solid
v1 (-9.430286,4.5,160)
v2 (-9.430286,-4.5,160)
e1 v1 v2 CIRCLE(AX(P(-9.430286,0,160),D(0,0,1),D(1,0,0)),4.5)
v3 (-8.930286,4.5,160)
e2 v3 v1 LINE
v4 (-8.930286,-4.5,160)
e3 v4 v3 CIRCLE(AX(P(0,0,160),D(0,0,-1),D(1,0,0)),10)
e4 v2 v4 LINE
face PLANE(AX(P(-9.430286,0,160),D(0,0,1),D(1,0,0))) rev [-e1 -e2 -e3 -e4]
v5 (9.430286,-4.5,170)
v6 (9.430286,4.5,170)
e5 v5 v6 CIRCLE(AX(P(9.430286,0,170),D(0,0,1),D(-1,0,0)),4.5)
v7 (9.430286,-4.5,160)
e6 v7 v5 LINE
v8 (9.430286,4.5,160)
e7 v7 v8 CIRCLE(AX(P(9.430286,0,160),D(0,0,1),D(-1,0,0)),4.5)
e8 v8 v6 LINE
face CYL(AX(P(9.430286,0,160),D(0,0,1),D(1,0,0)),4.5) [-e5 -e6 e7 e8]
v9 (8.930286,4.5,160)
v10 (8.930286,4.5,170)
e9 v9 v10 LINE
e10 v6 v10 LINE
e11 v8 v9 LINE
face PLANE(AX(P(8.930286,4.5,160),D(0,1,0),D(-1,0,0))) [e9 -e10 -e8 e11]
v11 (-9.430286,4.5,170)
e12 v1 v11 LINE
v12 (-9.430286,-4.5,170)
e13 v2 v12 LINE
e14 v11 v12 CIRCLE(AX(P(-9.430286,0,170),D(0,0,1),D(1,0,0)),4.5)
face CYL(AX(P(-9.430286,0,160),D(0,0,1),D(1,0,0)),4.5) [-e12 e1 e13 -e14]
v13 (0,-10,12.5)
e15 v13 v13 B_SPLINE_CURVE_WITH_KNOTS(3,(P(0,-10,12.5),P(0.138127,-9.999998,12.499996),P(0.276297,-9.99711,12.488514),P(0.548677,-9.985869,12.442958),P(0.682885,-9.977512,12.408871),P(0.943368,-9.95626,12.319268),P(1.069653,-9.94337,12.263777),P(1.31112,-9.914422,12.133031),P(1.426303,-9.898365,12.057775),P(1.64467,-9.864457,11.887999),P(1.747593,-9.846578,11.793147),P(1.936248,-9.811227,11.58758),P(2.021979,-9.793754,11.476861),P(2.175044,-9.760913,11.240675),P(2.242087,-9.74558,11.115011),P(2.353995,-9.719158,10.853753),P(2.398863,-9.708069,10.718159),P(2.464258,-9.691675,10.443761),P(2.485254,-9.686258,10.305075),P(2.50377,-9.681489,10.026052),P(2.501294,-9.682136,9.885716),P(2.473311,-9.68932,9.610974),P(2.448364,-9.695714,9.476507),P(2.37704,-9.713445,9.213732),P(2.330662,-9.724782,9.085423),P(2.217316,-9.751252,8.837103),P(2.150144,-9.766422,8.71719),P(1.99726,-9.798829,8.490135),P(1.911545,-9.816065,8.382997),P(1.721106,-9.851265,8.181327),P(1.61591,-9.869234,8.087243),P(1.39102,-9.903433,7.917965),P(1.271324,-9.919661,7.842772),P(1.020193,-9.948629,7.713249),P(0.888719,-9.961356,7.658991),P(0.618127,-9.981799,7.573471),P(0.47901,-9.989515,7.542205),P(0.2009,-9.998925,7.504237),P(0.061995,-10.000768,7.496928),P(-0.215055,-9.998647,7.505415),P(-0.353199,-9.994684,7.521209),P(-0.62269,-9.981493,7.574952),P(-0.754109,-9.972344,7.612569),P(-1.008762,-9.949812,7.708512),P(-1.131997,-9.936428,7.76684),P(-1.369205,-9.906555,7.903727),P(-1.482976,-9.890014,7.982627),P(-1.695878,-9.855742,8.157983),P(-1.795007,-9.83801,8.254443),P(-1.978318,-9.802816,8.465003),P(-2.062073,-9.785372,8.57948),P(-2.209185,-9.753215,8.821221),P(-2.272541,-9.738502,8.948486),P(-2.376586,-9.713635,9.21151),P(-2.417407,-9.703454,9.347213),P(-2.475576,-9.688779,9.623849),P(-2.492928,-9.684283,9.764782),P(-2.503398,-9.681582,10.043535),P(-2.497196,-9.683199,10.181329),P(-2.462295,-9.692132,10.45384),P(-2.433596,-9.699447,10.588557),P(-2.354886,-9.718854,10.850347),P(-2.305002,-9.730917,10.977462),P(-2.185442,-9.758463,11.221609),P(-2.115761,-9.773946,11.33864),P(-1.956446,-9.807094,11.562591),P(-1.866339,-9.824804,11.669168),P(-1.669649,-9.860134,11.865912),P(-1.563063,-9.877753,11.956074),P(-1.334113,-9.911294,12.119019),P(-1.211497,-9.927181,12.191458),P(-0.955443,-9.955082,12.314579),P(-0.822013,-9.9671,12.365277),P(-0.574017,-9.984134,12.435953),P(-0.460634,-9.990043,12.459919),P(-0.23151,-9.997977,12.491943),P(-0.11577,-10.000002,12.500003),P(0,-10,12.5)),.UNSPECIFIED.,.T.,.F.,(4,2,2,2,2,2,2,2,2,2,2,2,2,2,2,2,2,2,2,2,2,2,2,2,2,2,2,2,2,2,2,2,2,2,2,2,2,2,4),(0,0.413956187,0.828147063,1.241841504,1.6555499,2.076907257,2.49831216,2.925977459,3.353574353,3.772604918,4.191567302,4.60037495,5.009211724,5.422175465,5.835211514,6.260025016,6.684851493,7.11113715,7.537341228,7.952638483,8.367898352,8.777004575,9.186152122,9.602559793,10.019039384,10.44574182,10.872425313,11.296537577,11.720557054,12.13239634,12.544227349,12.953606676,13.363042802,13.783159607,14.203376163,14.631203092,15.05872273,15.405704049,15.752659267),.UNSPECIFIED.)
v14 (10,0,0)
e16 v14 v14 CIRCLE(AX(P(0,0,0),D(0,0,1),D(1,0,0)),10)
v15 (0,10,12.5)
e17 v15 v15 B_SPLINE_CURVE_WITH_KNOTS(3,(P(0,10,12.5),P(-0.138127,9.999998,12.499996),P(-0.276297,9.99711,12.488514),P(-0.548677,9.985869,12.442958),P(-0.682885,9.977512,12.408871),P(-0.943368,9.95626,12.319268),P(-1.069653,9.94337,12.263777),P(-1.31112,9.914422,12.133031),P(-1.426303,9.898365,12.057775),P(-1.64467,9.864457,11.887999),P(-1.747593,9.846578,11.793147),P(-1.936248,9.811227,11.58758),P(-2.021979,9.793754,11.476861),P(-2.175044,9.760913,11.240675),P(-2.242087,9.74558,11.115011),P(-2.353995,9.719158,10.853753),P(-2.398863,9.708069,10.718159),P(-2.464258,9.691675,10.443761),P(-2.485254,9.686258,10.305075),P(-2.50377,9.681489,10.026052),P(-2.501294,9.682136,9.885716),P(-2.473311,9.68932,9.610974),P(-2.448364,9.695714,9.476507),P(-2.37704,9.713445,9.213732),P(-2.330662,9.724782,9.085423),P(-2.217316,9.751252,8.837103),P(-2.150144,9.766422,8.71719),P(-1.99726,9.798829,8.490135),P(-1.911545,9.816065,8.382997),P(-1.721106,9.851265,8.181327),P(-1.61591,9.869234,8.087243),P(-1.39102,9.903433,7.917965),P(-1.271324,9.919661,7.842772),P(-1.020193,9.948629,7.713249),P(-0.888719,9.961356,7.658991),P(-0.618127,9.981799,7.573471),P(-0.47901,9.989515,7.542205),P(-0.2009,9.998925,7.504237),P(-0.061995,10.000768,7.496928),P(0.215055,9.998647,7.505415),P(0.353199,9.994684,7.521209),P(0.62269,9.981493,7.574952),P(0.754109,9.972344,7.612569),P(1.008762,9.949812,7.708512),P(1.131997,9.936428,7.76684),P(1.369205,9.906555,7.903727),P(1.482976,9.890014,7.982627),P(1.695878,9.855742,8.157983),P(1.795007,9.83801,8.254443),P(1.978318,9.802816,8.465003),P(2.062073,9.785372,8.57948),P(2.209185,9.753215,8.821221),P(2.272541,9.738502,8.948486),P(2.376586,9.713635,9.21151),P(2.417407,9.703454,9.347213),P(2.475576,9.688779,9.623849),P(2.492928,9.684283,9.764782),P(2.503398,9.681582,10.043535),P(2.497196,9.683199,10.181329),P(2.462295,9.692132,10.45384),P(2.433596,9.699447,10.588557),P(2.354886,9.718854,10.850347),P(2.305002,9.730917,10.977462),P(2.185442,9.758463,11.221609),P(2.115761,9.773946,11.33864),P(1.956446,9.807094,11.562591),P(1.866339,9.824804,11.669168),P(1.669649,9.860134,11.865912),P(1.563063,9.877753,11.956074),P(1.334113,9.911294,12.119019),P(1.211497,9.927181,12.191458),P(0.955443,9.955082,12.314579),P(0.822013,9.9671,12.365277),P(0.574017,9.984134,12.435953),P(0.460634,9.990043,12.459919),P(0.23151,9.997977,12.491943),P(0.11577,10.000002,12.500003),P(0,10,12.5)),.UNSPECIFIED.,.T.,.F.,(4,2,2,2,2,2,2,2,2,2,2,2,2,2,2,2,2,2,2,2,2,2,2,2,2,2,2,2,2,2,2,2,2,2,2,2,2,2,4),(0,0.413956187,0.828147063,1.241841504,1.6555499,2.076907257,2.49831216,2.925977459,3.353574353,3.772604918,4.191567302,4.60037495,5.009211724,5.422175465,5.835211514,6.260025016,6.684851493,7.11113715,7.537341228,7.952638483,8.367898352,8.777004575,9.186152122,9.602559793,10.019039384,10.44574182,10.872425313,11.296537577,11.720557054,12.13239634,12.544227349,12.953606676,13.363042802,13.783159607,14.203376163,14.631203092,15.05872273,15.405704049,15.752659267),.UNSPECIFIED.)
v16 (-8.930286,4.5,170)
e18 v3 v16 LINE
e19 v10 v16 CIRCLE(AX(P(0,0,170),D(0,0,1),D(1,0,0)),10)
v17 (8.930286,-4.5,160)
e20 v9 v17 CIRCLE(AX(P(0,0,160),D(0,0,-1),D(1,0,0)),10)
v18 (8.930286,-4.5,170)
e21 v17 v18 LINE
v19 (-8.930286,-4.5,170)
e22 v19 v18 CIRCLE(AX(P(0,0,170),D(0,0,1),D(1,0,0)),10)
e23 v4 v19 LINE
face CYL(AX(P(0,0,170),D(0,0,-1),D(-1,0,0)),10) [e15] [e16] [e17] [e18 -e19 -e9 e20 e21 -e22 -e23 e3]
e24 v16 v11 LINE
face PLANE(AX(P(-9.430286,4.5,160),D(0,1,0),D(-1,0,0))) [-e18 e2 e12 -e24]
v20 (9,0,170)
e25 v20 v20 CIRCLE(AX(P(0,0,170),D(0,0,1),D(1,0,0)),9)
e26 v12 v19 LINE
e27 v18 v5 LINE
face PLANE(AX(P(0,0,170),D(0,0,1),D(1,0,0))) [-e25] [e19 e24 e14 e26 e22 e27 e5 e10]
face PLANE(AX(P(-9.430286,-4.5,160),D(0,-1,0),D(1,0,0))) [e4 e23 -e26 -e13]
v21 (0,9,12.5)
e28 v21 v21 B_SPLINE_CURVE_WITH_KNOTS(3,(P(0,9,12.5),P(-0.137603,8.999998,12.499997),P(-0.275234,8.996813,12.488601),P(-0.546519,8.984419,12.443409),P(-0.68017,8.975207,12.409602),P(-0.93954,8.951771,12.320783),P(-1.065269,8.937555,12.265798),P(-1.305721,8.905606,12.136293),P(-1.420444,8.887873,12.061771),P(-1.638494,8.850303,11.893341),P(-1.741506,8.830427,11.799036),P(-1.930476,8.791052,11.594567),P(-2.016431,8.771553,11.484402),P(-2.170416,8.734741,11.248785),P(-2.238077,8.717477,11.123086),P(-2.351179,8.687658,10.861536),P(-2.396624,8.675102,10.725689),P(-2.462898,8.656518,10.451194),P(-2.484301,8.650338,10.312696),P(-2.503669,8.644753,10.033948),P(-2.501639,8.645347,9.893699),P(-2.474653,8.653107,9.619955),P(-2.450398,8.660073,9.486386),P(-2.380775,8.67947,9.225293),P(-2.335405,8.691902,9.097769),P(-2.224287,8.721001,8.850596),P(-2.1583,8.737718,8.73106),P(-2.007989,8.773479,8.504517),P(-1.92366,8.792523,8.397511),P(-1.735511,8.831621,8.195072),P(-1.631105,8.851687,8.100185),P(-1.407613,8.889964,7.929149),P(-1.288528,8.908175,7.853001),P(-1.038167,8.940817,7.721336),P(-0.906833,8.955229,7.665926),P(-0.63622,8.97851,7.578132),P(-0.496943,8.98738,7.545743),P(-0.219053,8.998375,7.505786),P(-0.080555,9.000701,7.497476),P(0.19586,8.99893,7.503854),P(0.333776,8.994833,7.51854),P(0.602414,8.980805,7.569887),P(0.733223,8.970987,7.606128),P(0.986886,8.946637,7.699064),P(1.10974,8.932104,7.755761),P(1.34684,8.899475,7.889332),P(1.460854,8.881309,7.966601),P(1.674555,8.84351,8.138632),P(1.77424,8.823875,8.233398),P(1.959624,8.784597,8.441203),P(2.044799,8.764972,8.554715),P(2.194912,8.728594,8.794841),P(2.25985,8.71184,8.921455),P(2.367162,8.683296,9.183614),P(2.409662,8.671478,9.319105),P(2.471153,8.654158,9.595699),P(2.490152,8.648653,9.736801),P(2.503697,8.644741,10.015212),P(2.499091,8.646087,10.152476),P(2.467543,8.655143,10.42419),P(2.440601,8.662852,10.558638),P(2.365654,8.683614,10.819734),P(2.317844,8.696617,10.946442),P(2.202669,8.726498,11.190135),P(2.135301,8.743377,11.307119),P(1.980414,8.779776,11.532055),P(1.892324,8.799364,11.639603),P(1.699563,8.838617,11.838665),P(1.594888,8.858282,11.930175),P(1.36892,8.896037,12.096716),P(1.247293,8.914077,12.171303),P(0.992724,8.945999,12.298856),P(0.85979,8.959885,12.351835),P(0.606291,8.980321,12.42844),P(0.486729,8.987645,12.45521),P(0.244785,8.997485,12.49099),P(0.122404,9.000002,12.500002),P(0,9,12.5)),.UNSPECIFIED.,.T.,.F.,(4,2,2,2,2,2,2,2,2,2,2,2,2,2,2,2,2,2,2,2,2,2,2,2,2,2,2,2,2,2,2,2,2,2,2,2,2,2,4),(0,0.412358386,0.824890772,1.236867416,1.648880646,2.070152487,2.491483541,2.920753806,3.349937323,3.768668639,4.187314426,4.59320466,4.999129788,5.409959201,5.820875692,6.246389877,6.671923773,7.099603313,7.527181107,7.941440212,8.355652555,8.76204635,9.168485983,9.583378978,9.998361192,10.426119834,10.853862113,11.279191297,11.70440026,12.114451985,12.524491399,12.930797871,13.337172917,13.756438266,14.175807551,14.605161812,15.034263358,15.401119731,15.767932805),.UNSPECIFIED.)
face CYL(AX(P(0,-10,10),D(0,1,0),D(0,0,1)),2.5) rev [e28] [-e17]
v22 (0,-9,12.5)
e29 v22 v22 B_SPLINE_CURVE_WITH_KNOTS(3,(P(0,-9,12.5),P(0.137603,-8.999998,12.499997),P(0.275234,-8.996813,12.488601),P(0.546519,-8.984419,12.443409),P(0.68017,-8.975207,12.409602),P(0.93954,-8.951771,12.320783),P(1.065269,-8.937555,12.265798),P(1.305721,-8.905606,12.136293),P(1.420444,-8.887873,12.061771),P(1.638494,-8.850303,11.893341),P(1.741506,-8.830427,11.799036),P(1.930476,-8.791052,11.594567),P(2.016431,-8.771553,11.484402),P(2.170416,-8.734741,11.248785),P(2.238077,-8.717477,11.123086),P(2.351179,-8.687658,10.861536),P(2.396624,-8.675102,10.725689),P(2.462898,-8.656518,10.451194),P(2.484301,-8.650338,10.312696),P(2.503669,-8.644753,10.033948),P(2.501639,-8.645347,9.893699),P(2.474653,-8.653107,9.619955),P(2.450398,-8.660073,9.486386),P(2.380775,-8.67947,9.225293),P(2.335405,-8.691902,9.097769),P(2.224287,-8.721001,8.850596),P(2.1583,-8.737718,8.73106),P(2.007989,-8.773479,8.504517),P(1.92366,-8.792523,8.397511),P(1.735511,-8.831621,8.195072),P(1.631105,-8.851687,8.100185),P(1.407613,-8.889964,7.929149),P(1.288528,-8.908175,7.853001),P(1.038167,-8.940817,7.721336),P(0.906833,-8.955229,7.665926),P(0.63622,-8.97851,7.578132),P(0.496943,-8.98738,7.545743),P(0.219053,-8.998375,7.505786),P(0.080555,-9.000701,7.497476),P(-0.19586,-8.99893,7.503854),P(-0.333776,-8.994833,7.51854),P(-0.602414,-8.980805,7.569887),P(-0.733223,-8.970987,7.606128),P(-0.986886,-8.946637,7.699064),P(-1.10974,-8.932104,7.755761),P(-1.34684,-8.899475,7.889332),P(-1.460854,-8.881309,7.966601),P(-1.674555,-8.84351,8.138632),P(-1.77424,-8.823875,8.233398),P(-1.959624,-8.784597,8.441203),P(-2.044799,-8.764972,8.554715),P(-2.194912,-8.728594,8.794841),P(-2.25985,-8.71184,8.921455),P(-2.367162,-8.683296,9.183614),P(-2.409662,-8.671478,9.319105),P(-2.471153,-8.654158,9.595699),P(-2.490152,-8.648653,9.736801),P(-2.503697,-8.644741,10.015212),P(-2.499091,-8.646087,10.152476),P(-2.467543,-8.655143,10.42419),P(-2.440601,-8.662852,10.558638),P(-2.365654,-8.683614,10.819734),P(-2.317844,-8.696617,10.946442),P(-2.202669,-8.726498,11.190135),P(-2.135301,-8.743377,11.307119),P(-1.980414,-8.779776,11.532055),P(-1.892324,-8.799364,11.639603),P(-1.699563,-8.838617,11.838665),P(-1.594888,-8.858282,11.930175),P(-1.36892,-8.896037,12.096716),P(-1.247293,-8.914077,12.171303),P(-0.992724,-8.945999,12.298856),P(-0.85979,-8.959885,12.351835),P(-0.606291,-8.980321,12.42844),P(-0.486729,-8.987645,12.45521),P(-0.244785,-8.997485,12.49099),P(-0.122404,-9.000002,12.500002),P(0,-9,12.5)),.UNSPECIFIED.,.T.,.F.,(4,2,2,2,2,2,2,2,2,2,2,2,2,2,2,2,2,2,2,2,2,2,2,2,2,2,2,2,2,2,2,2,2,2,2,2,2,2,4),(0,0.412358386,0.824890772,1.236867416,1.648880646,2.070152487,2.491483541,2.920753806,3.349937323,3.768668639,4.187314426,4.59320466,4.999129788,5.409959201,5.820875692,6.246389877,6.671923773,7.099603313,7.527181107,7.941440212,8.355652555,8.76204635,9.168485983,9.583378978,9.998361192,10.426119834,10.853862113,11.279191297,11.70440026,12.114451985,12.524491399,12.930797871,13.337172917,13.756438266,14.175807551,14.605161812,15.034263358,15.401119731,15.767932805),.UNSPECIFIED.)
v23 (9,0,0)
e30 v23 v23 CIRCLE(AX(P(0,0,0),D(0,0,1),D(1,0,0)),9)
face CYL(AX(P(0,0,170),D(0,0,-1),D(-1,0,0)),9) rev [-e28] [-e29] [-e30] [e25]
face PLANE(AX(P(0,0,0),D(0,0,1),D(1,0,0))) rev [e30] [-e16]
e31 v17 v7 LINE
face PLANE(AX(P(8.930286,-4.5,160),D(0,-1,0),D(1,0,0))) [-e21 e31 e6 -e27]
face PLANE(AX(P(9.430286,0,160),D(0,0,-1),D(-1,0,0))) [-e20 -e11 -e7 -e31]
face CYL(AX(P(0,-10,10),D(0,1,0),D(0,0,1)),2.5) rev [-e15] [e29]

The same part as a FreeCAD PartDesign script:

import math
import FreeCAD as App
import Part
import Sketcher

doc = App.newDocument("Part")
body = doc.addObject("PartDesign::Body", "Body")

sketch1 = body.newObject("Sketcher::SketchObject", "Sketch")
sketch1.AttachmentSupport = (doc.getObject("XY_Plane"), [""])
sketch1.MapMode = "FlatFace"
sketch1.addGeometry([
    Part.Circle(App.Vector(0, 0, 0), App.Vector(0, 0, 1), 10),
    Part.Circle(App.Vector(0, 0, 0), App.Vector(0, 0, 1), 9),
], False)
sketch1.addConstraint([
    Sketcher.Constraint("Coincident", 0, 3, -1, 1),
    Sketcher.Constraint("Coincident", 1, 3, -1, 1),
    Sketcher.Constraint("Diameter", 0, 20.0),
    Sketcher.Constraint("Diameter", 1, 18.0),
])
pad1 = body.newObject("PartDesign::Pad", "Pad")
pad1.Profile = sketch1
pad1.Length = 170

sketch2 = body.newObject("Sketcher::SketchObject", "Sketch001")
sketch2.AttachmentSupport = (doc.getObject("XY_Plane"), [""])
sketch2.MapMode = "FlatFace"
sketch2.AttachmentOffset = App.Placement(App.Vector(0, 0, 160), App.Rotation())
sketch2.addGeometry([
    Part.LineSegment(App.Vector(-8.9, 4.5, 0), App.Vector(-9.4, 4.5, 0)),
    Part.ArcOfCircle(Part.Circle(App.Vector(-9.4, 0, 0), App.Vector(0, 0, 1), 4.5), math.radians(90), math.radians(270)),
    Part.LineSegment(App.Vector(-9.4, -4.5, 0), App.Vector(-8.9, -4.5, 0)),
    Part.ArcOfCircle(Part.Circle(App.Vector(0, 0, 0), App.Vector(0, 0, 1), 10), math.radians(153), math.radians(207)),
    Part.LineSegment(App.Vector(9.4, 4.5, 0), App.Vector(8.9, 4.5, 0)),
    Part.ArcOfCircle(Part.Circle(App.Vector(0, 0, 0), App.Vector(0, 0, 1), 10), math.radians(-27), math.radians(27)),
    Part.LineSegment(App.Vector(8.9, -4.5, 0), App.Vector(9.4, -4.5, 0)),
    Part.ArcOfCircle(Part.Circle(App.Vector(9.4, 0, 0), App.Vector(0, 0, 1), 4.5), math.radians(-90), math.radians(90)),
], False)
sketch2.addConstraint([
    Sketcher.Constraint("Tangent", 0, 2, 1, 1),
    Sketcher.Constraint("Tangent", 1, 2, 2, 1),
    Sketcher.Constraint("Coincident", 2, 2, 3, 2),
    Sketcher.Constraint("Coincident", 3, 1, 0, 1),
    Sketcher.Constraint("Coincident", 4, 2, 5, 2),
    Sketcher.Constraint("Coincident", 5, 1, 6, 1),
    Sketcher.Constraint("Tangent", 6, 2, 7, 1),
    Sketcher.Constraint("Tangent", 7, 2, 4, 1),
    Sketcher.Constraint("Horizontal", 0),
    Sketcher.Constraint("Horizontal", 2),
    Sketcher.Constraint("Horizontal", 4),
    Sketcher.Constraint("Horizontal", 6),
    Sketcher.Constraint("Coincident", 3, 3, -1, 1),
    Sketcher.Constraint("Coincident", 5, 3, -1, 1),
    Sketcher.Constraint("Equal", 3, 5),
    Sketcher.Constraint("Equal", 1, 7),
    Sketcher.Constraint("Symmetric", 1, 3, 7, 3, -1, 1),
    Sketcher.Constraint("PointOnObject", 1, 3, -1),
    Sketcher.Constraint("Radius", 3, 10.0),
    Sketcher.Constraint("Radius", 1, 4.5),
    Sketcher.Constraint("DistanceX", 0, 2, 0, 1, 0.5),
])
pad2 = body.newObject("PartDesign::Pad", "Pad001")
pad2.Profile = sketch2
pad2.Length = 10

sketch3 = body.newObject("Sketcher::SketchObject", "Sketch002")
sketch3.AttachmentSupport = (doc.getObject("XZ_Plane"), [""])
sketch3.MapMode = "FlatFace"
sketch3.addGeometry(Part.Circle(App.Vector(0, 10, 0), App.Vector(0, 0, 1), 2.5), False)
sketch3.addConstraint([
    Sketcher.Constraint("PointOnObject", 0, 3, -2),
    Sketcher.Constraint("Diameter", 0, 5.0),
    Sketcher.Constraint("DistanceY", -1, 1, 0, 3, 10.0),
])
pocket1 = body.newObject("PartDesign::Pocket", "Pocket")
pocket1.Profile = sketch3
pocket1.Type = "ThroughAll"
pocket1.Midplane = True

doc.recompute()
